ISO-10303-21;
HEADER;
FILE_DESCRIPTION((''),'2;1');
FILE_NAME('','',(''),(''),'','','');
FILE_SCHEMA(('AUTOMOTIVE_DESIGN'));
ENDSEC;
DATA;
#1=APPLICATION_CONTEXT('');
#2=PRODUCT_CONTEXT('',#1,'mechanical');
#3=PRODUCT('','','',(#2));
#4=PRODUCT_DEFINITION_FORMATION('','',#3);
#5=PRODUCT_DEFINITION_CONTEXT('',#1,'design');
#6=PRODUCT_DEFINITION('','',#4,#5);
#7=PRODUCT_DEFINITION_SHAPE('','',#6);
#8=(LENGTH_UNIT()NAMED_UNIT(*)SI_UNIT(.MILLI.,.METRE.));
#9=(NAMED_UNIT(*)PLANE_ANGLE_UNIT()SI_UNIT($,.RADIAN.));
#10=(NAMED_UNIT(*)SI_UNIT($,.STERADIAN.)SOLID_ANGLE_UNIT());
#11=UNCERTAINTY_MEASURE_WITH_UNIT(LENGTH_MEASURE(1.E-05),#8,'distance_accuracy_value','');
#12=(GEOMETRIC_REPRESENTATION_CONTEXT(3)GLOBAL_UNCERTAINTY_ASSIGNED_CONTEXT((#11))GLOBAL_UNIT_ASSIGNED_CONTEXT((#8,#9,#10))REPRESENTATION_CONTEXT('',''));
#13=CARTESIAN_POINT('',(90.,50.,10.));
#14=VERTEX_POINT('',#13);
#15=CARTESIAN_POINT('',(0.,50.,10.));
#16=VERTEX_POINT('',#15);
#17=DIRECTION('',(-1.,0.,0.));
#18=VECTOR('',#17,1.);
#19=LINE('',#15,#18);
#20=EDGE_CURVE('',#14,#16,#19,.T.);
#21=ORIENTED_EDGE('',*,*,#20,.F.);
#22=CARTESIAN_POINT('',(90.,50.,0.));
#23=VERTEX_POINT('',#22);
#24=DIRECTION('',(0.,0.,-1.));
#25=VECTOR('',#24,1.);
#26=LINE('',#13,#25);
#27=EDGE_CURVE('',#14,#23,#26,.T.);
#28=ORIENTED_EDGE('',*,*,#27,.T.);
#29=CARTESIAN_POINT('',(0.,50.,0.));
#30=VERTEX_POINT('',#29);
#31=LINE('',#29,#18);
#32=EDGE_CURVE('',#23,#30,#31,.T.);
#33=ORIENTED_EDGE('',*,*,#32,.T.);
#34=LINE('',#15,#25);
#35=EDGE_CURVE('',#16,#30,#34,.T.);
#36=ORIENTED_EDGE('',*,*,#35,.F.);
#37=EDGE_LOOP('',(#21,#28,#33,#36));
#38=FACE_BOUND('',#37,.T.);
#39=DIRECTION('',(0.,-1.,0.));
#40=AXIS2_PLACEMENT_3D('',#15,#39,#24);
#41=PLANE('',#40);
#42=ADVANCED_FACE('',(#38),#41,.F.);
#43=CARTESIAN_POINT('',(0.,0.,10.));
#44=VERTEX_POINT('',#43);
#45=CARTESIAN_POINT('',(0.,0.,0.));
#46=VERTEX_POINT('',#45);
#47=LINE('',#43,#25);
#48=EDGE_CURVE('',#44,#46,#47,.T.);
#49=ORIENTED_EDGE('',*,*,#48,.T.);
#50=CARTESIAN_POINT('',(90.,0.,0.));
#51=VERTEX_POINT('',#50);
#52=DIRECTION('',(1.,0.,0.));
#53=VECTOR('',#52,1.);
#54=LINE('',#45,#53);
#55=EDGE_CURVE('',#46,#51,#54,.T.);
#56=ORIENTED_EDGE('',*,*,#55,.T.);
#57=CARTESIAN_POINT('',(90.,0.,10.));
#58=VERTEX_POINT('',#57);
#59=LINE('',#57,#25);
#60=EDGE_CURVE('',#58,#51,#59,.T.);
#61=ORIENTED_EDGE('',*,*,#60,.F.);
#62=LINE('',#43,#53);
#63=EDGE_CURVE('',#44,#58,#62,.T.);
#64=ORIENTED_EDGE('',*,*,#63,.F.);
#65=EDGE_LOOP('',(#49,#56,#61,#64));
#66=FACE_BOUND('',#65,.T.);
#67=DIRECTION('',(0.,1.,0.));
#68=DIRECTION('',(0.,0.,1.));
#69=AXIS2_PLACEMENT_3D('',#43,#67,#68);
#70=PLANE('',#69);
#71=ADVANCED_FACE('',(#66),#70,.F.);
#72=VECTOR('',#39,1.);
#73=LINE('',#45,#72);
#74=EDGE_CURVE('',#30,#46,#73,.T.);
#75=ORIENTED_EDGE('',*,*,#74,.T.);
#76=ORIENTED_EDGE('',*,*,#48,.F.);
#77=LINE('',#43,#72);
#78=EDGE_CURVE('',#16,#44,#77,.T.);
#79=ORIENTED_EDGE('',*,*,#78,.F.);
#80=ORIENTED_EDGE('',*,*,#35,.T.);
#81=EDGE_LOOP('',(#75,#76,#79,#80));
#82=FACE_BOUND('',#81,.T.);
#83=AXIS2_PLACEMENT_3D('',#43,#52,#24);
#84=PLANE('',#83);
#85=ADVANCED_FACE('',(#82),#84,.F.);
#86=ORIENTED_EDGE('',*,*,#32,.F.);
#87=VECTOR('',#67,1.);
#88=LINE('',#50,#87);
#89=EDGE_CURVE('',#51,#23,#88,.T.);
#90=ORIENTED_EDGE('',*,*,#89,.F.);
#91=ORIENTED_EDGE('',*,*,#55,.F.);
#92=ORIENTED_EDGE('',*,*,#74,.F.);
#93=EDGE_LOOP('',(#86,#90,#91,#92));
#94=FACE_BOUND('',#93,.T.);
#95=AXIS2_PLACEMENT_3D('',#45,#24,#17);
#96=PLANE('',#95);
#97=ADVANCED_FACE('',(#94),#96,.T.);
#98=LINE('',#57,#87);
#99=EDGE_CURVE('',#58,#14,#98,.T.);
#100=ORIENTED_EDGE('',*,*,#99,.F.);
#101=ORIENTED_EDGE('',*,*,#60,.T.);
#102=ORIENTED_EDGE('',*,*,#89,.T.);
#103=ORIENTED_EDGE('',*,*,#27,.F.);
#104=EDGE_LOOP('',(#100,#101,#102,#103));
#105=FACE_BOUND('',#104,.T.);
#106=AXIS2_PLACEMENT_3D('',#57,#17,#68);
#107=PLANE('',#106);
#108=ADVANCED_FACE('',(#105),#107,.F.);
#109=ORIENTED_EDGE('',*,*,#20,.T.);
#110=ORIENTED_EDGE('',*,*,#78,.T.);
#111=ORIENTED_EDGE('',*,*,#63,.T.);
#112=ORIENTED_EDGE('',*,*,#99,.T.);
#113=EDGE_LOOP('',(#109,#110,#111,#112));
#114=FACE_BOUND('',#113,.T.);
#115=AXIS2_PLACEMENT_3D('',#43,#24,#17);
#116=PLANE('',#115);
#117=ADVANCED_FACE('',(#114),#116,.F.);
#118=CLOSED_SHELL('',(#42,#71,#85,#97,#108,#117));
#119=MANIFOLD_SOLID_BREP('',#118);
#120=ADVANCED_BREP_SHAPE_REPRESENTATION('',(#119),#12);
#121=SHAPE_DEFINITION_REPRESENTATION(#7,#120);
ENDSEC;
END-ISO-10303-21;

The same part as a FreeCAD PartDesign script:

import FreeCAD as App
import Part
import Sketcher


def add_polygon(sketch, points):
    """Adds a closed chain of lines whose ends are joined by coincident constraints."""
    first, n = sketch.GeometryCount, len(points)
    for a, b in zip(points, points[1:] + points[:1]):
        sketch.addGeometry(Part.LineSegment(App.Vector(*a, 0), App.Vector(*b, 0)), False)
    for i in range(n):
        sketch.addConstraint(Sketcher.Constraint("Coincident", first + i, 2, first + (i + 1) % n, 1))

doc = App.newDocument("Part")
body = doc.addObject("PartDesign::Body", "Body")

# Sketch on XY plane
sketch1 = body.newObject("Sketcher::SketchObject", "Sketch")
sketch1.AttachmentSupport = (doc.getObject("XY_Plane"), [""])
sketch1.MapMode = "FlatFace"
add_polygon(sketch1, [(0, 50), (0, 0), (90, 0), (90, 50)])  # lines 0-3
sketch1.addConstraint(Sketcher.Constraint("Vertical", 0))
sketch1.addConstraint(Sketcher.Constraint("Horizontal", 1))
sketch1.addConstraint(Sketcher.Constraint("Vertical", 2))
sketch1.addConstraint(Sketcher.Constraint("Horizontal", 3))
sketch1.addConstraint(Sketcher.Constraint("Coincident", 0, 2, -1, 1))
sketch1.addConstraint(Sketcher.Constraint("DistanceX", 1, 1, 1, 2, 90.0))
sketch1.addConstraint(Sketcher.Constraint("DistanceY", 0, 2, 0, 1, 50.0))
pad1 = body.newObject("PartDesign::Pad", "Pad")
pad1.Profile = sketch1
pad1.Length = 10

doc.recompute()
